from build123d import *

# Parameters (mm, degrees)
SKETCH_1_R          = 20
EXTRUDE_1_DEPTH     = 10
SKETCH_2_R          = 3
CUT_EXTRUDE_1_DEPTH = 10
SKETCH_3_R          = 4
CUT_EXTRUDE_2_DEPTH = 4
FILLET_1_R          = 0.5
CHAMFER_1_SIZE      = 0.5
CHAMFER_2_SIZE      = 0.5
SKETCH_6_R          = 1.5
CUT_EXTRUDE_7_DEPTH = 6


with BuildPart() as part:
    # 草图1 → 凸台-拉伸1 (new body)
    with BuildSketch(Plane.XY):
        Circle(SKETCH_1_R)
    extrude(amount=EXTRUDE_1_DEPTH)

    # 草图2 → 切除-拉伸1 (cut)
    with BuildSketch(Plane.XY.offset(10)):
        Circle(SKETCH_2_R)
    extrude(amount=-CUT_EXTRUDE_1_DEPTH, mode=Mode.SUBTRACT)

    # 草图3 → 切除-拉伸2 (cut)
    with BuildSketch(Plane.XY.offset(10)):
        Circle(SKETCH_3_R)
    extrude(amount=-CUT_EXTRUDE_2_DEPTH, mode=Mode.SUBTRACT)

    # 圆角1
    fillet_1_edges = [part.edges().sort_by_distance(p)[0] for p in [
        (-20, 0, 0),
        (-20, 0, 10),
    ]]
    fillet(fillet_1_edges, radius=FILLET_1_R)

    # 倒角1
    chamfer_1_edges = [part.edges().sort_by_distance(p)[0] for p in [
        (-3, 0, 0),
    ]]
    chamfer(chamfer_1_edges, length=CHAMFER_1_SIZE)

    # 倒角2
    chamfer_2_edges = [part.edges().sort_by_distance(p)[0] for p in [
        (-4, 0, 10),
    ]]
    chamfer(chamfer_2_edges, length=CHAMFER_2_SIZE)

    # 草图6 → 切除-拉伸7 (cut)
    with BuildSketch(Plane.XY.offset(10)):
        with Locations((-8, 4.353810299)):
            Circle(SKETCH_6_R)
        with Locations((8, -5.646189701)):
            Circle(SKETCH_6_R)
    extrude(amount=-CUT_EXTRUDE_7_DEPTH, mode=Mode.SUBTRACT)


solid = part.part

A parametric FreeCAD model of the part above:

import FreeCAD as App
import Part
import Sketcher
from FreeCAD import Vector
Q = App.Units.Quantity


def edges_at(feature, points):
    """Names of the edges that pass closest to the given points."""
    edges = feature.Shape.Edges
    near = lambda p: min(range(len(edges)), key=lambda i: edges[i].distToShape(Part.Vertex(*p))[0])
    return sorted({f"Edge{near(p) + 1}" for p in points})

doc = App.newDocument("Part")
body = doc.addObject("PartDesign::Body", "Body")

sketch1 = doc.addObject("Sketcher::SketchObject", "Sketch")
body.addObject(sketch1)
sketch1.AttachmentSupport = (doc.XY_Plane, [""])
sketch1.MapMode = "FlatFace"
sketch1.addGeometry(Part.Circle(Vector(0, 0, 0), Vector(0, 0, 1), 20), False)
sketch1.addConstraint(Sketcher.Constraint("Coincident", 0, 3, -1, 1))
sketch1.addConstraint(Sketcher.Constraint("Diameter", 0, Q("40 mm")))
pad1 = doc.addObject("PartDesign::Pad", "Pad")
body.addObject(pad1)
pad1.Profile = sketch1
pad1.Length = 10

sketch2 = doc.addObject("Sketcher::SketchObject", "Sketch001")
body.addObject(sketch2)
sketch2.AttachmentSupport = (doc.XY_Plane, [""])
sketch2.MapMode = "FlatFace"
sketch2.AttachmentOffset = App.Placement(Vector(0, 0, 10), App.Rotation())
sketch2.addGeometry(Part.Circle(Vector(0, 0, 0), Vector(0, 0, 1), 3), False)
sketch2.addConstraint(Sketcher.Constraint("Coincident", 0, 3, -1, 1))
sketch2.addConstraint(Sketcher.Constraint("Diameter", 0, Q("6 mm")))
pocket1 = doc.addObject("PartDesign::Pocket", "Pocket")
body.addObject(pocket1)
pocket1.Profile = sketch2
pocket1.Length = 10

sketch3 = doc.addObject("Sketcher::SketchObject", "Sketch002")
body.addObject(sketch3)
sketch3.AttachmentSupport = (doc.XY_Plane, [""])
sketch3.MapMode = "FlatFace"
sketch3.AttachmentOffset = App.Placement(Vector(0, 0, 10), App.Rotation())
sketch3.addGeometry(Part.Circle(Vector(0, 0, 0), Vector(0, 0, 1), 4), False)
sketch3.addConstraint(Sketcher.Constraint("Coincident", 0, 3, -1, 1))
sketch3.addConstraint(Sketcher.Constraint("Diameter", 0, Q("8 mm")))
pocket2 = doc.addObject("PartDesign::Pocket", "Pocket001")
body.addObject(pocket2)
pocket2.Profile = sketch3
pocket2.Length = 4
doc.recompute()

fillet = doc.addObject("PartDesign::Fillet", "Fillet")
body.addObject(fillet)
fillet.Base = (pocket2, edges_at(pocket2, [(-20, 0, 0), (-20, 0, 10)]))
fillet.Radius = 0.5
doc.recompute()

chamfer = doc.addObject("PartDesign::Chamfer", "Chamfer")
body.addObject(chamfer)
chamfer.Base = (fillet, edges_at(fillet, [(-3, 0, 0)]))
chamfer.Size = 0.5
doc.recompute()

chamfer2 = doc.addObject("PartDesign::Chamfer", "Chamfer001")
body.addObject(chamfer2)
chamfer2.Base = (chamfer, edges_at(chamfer, [(-4, 0, 10)]))
chamfer2.Size = 0.5

sketch4 = doc.addObject("Sketcher::SketchObject", "Sketch003")
body.addObject(sketch4)
sketch4.AttachmentSupport = (doc.XY_Plane, [""])
sketch4.MapMode = "FlatFace"
sketch4.AttachmentOffset = App.Placement(Vector(0, 0, 10), App.Rotation())
sketch4.addGeometry(Part.Circle(Vector(-8, 4.4, 0), Vector(0, 0, 1), 1.5), False)
sketch4.addGeometry(Part.Circle(Vector(8, -5.6, 0), Vector(0, 0, 1), 1.5), False)
sketch4.addConstraint(Sketcher.Constraint("Equal", 0, 1))
sketch4.addConstraint(Sketcher.Constraint("Diameter", 0, Q("3 mm")))
sketch4.addConstraint(Sketcher.Constraint("DistanceX", 0, 3, -1, 1, Q("8 mm")))
sketch4.addConstraint(Sketcher.Constraint("DistanceX", -1, 1, 1, 3, Q("8 mm")))
sketch4.addConstraint(Sketcher.Constraint("DistanceY", 1, 3, 0, 3, Q("10 mm")))
sketch4.addConstraint(Sketcher.Constraint("DistanceY", -1, 1, 0, 3, Q("4.35381 mm")))
pocket3 = doc.addObject("PartDesign::Pocket", "Pocket002")
body.addObject(pocket3)
pocket3.Profile = sketch4
pocket3.Length = 6

doc.recompute()
